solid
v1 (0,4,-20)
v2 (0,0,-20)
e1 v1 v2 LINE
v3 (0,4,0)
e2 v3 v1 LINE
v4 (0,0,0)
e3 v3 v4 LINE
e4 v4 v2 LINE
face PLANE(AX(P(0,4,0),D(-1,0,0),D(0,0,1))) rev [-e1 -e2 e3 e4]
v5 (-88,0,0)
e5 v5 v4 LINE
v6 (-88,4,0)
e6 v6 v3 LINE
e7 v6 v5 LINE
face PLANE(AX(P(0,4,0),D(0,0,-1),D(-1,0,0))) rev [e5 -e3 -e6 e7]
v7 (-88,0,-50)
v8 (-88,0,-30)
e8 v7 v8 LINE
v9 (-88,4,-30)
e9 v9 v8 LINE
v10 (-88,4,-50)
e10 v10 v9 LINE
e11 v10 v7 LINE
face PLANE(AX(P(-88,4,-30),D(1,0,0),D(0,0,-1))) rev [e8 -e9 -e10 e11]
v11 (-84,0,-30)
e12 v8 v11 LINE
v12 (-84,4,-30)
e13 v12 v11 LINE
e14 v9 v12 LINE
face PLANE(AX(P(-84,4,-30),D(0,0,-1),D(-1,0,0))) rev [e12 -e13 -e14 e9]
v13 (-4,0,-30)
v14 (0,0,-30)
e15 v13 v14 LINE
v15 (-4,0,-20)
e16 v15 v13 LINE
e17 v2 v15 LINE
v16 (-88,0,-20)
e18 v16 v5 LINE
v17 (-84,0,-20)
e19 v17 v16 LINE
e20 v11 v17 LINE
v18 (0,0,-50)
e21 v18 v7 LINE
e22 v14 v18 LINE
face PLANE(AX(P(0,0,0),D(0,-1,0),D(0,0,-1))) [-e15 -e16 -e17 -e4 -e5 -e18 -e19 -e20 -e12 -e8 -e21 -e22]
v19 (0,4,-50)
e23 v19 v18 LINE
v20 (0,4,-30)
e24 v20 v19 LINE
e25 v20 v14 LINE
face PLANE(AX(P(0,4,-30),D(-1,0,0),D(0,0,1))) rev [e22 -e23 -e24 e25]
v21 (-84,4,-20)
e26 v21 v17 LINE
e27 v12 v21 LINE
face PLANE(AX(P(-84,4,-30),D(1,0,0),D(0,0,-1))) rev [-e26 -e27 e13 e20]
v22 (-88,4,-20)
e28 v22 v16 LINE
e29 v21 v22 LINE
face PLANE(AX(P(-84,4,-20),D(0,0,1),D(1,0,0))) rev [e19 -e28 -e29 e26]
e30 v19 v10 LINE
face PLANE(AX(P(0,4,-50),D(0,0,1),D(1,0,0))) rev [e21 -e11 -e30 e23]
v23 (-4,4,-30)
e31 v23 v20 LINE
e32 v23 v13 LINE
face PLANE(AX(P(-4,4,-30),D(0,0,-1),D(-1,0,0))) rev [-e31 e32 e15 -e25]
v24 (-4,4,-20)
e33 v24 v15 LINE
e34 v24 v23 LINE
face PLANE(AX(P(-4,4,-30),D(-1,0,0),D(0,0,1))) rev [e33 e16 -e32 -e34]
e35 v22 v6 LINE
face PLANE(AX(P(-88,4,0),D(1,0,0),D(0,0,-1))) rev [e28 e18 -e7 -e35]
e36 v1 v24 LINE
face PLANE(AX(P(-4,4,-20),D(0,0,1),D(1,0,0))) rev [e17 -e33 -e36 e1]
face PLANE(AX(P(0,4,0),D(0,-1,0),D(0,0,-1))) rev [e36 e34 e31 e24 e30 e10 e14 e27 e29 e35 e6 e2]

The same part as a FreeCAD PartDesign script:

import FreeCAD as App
import Part
import Sketcher
Q = App.Units.Quantity

doc = App.newDocument("Part")
body = doc.addObject("PartDesign::Body", "Body")

# Sketch on XZ plane
sketch1 = body.newObject("Sketcher::SketchObject", "Sketch")
sketch1.AttachmentSupport = (doc.getObject("XZ_Plane"), [""])
sketch1.MapMode = "FlatFace"
sketch1.addGeometry([
    Part.LineSegment(App.Vector(-88, -50, 0), App.Vector(-88, -30, 0)),  # 0
    Part.LineSegment(App.Vector(-88, -30, 0), App.Vector(-84, -30, 0)),  # 1
    Part.LineSegment(App.Vector(-84, -30, 0), App.Vector(-84, -20, 0)),  # 2
    Part.LineSegment(App.Vector(-84, -20, 0), App.Vector(-88, -20, 0)),  # 3
    Part.LineSegment(App.Vector(-88, -20, 0), App.Vector(-88, 0, 0)),  # 4
    Part.LineSegment(App.Vector(-88, 0, 0), App.Vector(0, 0, 0)),  # 5
    Part.LineSegment(App.Vector(0, 0, 0), App.Vector(0, -20, 0)),  # 6
    Part.LineSegment(App.Vector(0, -20, 0), App.Vector(-4, -20, 0)),  # 7
    Part.LineSegment(App.Vector(-4, -20, 0), App.Vector(-4, -30, 0)),  # 8
    Part.LineSegment(App.Vector(-4, -30, 0), App.Vector(0, -30, 0)),  # 9
    Part.LineSegment(App.Vector(0, -30, 0), App.Vector(0, -50, 0)),  # 10
    Part.LineSegment(App.Vector(0, -50, 0), App.Vector(-88, -50, 0)),  # 11
], False)
sketch1.addConstraint([
    Sketcher.Constraint("Coincident", 0, 2, 1, 1),
    Sketcher.Constraint("Coincident", 1, 2, 2, 1),
    Sketcher.Constraint("Coincident", 2, 2, 3, 1),
    Sketcher.Constraint("Coincident", 3, 2, 4, 1),
    Sketcher.Constraint("Coincident", 4, 2, 5, 1),
    Sketcher.Constraint("Coincident", 5, 2, 6, 1),
    Sketcher.Constraint("Coincident", 6, 2, 7, 1),
    Sketcher.Constraint("Coincident", 7, 2, 8, 1),
    Sketcher.Constraint("Coincident", 8, 2, 9, 1),
    Sketcher.Constraint("Coincident", 9, 2, 10, 1),
    Sketcher.Constraint("Coincident", 10, 2, 11, 1),
    Sketcher.Constraint("Coincident", 11, 2, 0, 1),
    Sketcher.Constraint("Vertical", 0),
    Sketcher.Constraint("Horizontal", 1),
    Sketcher.Constraint("Vertical", 2),
    Sketcher.Constraint("Horizontal", 3),
    Sketcher.Constraint("Vertical", 4),
    Sketcher.Constraint("Horizontal", 5),
    Sketcher.Constraint("Vertical", 6),
    Sketcher.Constraint("Horizontal", 7),
    Sketcher.Constraint("Vertical", 8),
    Sketcher.Constraint("Horizontal", 9),
    Sketcher.Constraint("Vertical", 10),
    Sketcher.Constraint("Horizontal", 11),
    Sketcher.Constraint("Coincident", 5, 2, -1, 1),
    Sketcher.Constraint("PointOnObject", 9, 2, -2),
    Sketcher.Constraint("Horizontal", 3, 2, 6, 2),
    Sketcher.Constraint("Horizontal", 1, 2, 8, 2),
    Sketcher.Constraint("Vertical", 0, 2, 3, 2),
    Sketcher.Constraint("Equal", 3, 7),
    Sketcher.Constraint("Equal", 0, 4),
    Sketcher.Constraint("DistanceX", 1, 1, 1, 2, Q("4 mm")),
    Sketcher.Constraint("DistanceX", 5, 1, 5, 2, Q("88 mm")),
    Sketcher.Constraint("DistanceY", 0, 1, 0, 2, Q("20 mm")),
    Sketcher.Constraint("DistanceY", 2, 1, 2, 2, Q("10 mm")),
])
pad1 = body.newObject("PartDesign::Pad", "Pad")
pad1.Profile = sketch1
pad1.Length = 4
pad1.Reversed = True

doc.recompute()
